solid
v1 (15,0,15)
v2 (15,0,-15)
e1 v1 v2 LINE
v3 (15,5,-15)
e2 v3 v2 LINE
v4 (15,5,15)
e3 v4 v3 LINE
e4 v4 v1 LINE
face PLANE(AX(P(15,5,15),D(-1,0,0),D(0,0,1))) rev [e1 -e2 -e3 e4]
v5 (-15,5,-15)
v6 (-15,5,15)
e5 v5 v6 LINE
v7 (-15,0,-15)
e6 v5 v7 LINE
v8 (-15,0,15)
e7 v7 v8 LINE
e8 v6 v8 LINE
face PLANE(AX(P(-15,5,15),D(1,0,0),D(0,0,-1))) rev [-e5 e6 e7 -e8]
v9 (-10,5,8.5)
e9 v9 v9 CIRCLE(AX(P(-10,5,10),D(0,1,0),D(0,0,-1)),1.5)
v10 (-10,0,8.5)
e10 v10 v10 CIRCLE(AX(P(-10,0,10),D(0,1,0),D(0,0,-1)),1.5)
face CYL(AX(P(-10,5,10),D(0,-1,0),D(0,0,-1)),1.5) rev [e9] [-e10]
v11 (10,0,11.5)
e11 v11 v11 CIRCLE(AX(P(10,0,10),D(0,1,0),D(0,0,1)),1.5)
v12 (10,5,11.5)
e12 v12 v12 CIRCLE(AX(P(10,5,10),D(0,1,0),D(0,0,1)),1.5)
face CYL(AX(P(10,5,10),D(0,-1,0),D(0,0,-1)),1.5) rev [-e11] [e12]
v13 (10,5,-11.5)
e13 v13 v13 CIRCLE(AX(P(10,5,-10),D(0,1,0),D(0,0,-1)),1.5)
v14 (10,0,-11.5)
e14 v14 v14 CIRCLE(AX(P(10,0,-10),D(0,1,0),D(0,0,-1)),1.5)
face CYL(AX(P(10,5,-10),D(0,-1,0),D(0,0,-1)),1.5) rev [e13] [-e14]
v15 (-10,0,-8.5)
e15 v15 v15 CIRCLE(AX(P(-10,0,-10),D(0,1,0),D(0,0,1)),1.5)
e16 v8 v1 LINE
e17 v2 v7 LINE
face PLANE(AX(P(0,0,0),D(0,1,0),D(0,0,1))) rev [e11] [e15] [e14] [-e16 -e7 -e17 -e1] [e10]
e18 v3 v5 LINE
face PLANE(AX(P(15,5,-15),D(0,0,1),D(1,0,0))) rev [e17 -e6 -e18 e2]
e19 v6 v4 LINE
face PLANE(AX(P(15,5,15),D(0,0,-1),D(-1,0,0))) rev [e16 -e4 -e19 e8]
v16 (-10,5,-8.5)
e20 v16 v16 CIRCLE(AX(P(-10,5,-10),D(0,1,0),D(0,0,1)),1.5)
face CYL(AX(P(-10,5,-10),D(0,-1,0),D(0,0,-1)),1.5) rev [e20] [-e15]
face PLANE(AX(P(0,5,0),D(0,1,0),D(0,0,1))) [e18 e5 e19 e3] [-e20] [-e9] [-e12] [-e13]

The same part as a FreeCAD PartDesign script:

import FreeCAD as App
import Part
import Sketcher

doc = App.newDocument("Part")
body = doc.addObject("PartDesign::Body", "Body")

# Sketch on XZ plane
sketch1 = body.newObject("Sketcher::SketchObject", "Sketch")
sketch1.AttachmentSupport = (doc.getObject("XZ_Plane"), [""])
sketch1.MapMode = "FlatFace"
sketch1.addGeometry([
    Part.LineSegment(App.Vector(-15, -15, 0), App.Vector(-15, 15, 0)),  # 0
    Part.LineSegment(App.Vector(-15, 15, 0), App.Vector(15, 15, 0)),  # 1
    Part.LineSegment(App.Vector(15, 15, 0), App.Vector(15, -15, 0)),  # 2
    Part.LineSegment(App.Vector(15, -15, 0), App.Vector(-15, -15, 0)),  # 3
    Part.Circle(App.Vector(-10, 10, 0), App.Vector(0, 0, 1), 1.5),  # 4
    Part.Circle(App.Vector(10, 10, 0), App.Vector(0, 0, 1), 1.5),  # 5
    Part.Circle(App.Vector(-10, -10, 0), App.Vector(0, 0, 1), 1.5),  # 6
    Part.Circle(App.Vector(10, -10, 0), App.Vector(0, 0, 1), 1.5),  # 7
], False)
sketch1.addConstraint([
    Sketcher.Constraint("Coincident", 0, 2, 1, 1),
    Sketcher.Constraint("Coincident", 1, 2, 2, 1),
    Sketcher.Constraint("Coincident", 2, 2, 3, 1),
    Sketcher.Constraint("Coincident", 3, 2, 0, 1),
    Sketcher.Constraint("Vertical", 0),
    Sketcher.Constraint("Horizontal", 1),
    Sketcher.Constraint("Vertical", 2),
    Sketcher.Constraint("Horizontal", 3),
    Sketcher.Constraint("Equal", 4, 5),
    Sketcher.Constraint("Equal", 5, 6),
    Sketcher.Constraint("Equal", 6, 7),
    Sketcher.Constraint("Symmetric", 5, 3, 6, 3, -1, 1),
    Sketcher.Constraint("Symmetric", 4, 3, 7, 3, -1, 1),
    Sketcher.Constraint("Symmetric", 0, 2, 2, 2, -1, 1),
    Sketcher.Constraint("Symmetric", 4, 3, 5, 3, -2),
    Sketcher.Constraint("Equal", 3, 0),
    Sketcher.Constraint("Diameter", 4, 3.0),
    Sketcher.Constraint("DistanceX", 1, 1, 1, 2, 30.0),
    Sketcher.Constraint("DistanceX", 4, 3, -1, 1, 10.0),
    Sketcher.Constraint("DistanceY", -1, 1, 4, 3, 10.0),
])
pad1 = body.newObject("PartDesign::Pad", "Pad")
pad1.Profile = sketch1
pad1.Length = 5
pad1.Reversed = True

doc.recompute()
